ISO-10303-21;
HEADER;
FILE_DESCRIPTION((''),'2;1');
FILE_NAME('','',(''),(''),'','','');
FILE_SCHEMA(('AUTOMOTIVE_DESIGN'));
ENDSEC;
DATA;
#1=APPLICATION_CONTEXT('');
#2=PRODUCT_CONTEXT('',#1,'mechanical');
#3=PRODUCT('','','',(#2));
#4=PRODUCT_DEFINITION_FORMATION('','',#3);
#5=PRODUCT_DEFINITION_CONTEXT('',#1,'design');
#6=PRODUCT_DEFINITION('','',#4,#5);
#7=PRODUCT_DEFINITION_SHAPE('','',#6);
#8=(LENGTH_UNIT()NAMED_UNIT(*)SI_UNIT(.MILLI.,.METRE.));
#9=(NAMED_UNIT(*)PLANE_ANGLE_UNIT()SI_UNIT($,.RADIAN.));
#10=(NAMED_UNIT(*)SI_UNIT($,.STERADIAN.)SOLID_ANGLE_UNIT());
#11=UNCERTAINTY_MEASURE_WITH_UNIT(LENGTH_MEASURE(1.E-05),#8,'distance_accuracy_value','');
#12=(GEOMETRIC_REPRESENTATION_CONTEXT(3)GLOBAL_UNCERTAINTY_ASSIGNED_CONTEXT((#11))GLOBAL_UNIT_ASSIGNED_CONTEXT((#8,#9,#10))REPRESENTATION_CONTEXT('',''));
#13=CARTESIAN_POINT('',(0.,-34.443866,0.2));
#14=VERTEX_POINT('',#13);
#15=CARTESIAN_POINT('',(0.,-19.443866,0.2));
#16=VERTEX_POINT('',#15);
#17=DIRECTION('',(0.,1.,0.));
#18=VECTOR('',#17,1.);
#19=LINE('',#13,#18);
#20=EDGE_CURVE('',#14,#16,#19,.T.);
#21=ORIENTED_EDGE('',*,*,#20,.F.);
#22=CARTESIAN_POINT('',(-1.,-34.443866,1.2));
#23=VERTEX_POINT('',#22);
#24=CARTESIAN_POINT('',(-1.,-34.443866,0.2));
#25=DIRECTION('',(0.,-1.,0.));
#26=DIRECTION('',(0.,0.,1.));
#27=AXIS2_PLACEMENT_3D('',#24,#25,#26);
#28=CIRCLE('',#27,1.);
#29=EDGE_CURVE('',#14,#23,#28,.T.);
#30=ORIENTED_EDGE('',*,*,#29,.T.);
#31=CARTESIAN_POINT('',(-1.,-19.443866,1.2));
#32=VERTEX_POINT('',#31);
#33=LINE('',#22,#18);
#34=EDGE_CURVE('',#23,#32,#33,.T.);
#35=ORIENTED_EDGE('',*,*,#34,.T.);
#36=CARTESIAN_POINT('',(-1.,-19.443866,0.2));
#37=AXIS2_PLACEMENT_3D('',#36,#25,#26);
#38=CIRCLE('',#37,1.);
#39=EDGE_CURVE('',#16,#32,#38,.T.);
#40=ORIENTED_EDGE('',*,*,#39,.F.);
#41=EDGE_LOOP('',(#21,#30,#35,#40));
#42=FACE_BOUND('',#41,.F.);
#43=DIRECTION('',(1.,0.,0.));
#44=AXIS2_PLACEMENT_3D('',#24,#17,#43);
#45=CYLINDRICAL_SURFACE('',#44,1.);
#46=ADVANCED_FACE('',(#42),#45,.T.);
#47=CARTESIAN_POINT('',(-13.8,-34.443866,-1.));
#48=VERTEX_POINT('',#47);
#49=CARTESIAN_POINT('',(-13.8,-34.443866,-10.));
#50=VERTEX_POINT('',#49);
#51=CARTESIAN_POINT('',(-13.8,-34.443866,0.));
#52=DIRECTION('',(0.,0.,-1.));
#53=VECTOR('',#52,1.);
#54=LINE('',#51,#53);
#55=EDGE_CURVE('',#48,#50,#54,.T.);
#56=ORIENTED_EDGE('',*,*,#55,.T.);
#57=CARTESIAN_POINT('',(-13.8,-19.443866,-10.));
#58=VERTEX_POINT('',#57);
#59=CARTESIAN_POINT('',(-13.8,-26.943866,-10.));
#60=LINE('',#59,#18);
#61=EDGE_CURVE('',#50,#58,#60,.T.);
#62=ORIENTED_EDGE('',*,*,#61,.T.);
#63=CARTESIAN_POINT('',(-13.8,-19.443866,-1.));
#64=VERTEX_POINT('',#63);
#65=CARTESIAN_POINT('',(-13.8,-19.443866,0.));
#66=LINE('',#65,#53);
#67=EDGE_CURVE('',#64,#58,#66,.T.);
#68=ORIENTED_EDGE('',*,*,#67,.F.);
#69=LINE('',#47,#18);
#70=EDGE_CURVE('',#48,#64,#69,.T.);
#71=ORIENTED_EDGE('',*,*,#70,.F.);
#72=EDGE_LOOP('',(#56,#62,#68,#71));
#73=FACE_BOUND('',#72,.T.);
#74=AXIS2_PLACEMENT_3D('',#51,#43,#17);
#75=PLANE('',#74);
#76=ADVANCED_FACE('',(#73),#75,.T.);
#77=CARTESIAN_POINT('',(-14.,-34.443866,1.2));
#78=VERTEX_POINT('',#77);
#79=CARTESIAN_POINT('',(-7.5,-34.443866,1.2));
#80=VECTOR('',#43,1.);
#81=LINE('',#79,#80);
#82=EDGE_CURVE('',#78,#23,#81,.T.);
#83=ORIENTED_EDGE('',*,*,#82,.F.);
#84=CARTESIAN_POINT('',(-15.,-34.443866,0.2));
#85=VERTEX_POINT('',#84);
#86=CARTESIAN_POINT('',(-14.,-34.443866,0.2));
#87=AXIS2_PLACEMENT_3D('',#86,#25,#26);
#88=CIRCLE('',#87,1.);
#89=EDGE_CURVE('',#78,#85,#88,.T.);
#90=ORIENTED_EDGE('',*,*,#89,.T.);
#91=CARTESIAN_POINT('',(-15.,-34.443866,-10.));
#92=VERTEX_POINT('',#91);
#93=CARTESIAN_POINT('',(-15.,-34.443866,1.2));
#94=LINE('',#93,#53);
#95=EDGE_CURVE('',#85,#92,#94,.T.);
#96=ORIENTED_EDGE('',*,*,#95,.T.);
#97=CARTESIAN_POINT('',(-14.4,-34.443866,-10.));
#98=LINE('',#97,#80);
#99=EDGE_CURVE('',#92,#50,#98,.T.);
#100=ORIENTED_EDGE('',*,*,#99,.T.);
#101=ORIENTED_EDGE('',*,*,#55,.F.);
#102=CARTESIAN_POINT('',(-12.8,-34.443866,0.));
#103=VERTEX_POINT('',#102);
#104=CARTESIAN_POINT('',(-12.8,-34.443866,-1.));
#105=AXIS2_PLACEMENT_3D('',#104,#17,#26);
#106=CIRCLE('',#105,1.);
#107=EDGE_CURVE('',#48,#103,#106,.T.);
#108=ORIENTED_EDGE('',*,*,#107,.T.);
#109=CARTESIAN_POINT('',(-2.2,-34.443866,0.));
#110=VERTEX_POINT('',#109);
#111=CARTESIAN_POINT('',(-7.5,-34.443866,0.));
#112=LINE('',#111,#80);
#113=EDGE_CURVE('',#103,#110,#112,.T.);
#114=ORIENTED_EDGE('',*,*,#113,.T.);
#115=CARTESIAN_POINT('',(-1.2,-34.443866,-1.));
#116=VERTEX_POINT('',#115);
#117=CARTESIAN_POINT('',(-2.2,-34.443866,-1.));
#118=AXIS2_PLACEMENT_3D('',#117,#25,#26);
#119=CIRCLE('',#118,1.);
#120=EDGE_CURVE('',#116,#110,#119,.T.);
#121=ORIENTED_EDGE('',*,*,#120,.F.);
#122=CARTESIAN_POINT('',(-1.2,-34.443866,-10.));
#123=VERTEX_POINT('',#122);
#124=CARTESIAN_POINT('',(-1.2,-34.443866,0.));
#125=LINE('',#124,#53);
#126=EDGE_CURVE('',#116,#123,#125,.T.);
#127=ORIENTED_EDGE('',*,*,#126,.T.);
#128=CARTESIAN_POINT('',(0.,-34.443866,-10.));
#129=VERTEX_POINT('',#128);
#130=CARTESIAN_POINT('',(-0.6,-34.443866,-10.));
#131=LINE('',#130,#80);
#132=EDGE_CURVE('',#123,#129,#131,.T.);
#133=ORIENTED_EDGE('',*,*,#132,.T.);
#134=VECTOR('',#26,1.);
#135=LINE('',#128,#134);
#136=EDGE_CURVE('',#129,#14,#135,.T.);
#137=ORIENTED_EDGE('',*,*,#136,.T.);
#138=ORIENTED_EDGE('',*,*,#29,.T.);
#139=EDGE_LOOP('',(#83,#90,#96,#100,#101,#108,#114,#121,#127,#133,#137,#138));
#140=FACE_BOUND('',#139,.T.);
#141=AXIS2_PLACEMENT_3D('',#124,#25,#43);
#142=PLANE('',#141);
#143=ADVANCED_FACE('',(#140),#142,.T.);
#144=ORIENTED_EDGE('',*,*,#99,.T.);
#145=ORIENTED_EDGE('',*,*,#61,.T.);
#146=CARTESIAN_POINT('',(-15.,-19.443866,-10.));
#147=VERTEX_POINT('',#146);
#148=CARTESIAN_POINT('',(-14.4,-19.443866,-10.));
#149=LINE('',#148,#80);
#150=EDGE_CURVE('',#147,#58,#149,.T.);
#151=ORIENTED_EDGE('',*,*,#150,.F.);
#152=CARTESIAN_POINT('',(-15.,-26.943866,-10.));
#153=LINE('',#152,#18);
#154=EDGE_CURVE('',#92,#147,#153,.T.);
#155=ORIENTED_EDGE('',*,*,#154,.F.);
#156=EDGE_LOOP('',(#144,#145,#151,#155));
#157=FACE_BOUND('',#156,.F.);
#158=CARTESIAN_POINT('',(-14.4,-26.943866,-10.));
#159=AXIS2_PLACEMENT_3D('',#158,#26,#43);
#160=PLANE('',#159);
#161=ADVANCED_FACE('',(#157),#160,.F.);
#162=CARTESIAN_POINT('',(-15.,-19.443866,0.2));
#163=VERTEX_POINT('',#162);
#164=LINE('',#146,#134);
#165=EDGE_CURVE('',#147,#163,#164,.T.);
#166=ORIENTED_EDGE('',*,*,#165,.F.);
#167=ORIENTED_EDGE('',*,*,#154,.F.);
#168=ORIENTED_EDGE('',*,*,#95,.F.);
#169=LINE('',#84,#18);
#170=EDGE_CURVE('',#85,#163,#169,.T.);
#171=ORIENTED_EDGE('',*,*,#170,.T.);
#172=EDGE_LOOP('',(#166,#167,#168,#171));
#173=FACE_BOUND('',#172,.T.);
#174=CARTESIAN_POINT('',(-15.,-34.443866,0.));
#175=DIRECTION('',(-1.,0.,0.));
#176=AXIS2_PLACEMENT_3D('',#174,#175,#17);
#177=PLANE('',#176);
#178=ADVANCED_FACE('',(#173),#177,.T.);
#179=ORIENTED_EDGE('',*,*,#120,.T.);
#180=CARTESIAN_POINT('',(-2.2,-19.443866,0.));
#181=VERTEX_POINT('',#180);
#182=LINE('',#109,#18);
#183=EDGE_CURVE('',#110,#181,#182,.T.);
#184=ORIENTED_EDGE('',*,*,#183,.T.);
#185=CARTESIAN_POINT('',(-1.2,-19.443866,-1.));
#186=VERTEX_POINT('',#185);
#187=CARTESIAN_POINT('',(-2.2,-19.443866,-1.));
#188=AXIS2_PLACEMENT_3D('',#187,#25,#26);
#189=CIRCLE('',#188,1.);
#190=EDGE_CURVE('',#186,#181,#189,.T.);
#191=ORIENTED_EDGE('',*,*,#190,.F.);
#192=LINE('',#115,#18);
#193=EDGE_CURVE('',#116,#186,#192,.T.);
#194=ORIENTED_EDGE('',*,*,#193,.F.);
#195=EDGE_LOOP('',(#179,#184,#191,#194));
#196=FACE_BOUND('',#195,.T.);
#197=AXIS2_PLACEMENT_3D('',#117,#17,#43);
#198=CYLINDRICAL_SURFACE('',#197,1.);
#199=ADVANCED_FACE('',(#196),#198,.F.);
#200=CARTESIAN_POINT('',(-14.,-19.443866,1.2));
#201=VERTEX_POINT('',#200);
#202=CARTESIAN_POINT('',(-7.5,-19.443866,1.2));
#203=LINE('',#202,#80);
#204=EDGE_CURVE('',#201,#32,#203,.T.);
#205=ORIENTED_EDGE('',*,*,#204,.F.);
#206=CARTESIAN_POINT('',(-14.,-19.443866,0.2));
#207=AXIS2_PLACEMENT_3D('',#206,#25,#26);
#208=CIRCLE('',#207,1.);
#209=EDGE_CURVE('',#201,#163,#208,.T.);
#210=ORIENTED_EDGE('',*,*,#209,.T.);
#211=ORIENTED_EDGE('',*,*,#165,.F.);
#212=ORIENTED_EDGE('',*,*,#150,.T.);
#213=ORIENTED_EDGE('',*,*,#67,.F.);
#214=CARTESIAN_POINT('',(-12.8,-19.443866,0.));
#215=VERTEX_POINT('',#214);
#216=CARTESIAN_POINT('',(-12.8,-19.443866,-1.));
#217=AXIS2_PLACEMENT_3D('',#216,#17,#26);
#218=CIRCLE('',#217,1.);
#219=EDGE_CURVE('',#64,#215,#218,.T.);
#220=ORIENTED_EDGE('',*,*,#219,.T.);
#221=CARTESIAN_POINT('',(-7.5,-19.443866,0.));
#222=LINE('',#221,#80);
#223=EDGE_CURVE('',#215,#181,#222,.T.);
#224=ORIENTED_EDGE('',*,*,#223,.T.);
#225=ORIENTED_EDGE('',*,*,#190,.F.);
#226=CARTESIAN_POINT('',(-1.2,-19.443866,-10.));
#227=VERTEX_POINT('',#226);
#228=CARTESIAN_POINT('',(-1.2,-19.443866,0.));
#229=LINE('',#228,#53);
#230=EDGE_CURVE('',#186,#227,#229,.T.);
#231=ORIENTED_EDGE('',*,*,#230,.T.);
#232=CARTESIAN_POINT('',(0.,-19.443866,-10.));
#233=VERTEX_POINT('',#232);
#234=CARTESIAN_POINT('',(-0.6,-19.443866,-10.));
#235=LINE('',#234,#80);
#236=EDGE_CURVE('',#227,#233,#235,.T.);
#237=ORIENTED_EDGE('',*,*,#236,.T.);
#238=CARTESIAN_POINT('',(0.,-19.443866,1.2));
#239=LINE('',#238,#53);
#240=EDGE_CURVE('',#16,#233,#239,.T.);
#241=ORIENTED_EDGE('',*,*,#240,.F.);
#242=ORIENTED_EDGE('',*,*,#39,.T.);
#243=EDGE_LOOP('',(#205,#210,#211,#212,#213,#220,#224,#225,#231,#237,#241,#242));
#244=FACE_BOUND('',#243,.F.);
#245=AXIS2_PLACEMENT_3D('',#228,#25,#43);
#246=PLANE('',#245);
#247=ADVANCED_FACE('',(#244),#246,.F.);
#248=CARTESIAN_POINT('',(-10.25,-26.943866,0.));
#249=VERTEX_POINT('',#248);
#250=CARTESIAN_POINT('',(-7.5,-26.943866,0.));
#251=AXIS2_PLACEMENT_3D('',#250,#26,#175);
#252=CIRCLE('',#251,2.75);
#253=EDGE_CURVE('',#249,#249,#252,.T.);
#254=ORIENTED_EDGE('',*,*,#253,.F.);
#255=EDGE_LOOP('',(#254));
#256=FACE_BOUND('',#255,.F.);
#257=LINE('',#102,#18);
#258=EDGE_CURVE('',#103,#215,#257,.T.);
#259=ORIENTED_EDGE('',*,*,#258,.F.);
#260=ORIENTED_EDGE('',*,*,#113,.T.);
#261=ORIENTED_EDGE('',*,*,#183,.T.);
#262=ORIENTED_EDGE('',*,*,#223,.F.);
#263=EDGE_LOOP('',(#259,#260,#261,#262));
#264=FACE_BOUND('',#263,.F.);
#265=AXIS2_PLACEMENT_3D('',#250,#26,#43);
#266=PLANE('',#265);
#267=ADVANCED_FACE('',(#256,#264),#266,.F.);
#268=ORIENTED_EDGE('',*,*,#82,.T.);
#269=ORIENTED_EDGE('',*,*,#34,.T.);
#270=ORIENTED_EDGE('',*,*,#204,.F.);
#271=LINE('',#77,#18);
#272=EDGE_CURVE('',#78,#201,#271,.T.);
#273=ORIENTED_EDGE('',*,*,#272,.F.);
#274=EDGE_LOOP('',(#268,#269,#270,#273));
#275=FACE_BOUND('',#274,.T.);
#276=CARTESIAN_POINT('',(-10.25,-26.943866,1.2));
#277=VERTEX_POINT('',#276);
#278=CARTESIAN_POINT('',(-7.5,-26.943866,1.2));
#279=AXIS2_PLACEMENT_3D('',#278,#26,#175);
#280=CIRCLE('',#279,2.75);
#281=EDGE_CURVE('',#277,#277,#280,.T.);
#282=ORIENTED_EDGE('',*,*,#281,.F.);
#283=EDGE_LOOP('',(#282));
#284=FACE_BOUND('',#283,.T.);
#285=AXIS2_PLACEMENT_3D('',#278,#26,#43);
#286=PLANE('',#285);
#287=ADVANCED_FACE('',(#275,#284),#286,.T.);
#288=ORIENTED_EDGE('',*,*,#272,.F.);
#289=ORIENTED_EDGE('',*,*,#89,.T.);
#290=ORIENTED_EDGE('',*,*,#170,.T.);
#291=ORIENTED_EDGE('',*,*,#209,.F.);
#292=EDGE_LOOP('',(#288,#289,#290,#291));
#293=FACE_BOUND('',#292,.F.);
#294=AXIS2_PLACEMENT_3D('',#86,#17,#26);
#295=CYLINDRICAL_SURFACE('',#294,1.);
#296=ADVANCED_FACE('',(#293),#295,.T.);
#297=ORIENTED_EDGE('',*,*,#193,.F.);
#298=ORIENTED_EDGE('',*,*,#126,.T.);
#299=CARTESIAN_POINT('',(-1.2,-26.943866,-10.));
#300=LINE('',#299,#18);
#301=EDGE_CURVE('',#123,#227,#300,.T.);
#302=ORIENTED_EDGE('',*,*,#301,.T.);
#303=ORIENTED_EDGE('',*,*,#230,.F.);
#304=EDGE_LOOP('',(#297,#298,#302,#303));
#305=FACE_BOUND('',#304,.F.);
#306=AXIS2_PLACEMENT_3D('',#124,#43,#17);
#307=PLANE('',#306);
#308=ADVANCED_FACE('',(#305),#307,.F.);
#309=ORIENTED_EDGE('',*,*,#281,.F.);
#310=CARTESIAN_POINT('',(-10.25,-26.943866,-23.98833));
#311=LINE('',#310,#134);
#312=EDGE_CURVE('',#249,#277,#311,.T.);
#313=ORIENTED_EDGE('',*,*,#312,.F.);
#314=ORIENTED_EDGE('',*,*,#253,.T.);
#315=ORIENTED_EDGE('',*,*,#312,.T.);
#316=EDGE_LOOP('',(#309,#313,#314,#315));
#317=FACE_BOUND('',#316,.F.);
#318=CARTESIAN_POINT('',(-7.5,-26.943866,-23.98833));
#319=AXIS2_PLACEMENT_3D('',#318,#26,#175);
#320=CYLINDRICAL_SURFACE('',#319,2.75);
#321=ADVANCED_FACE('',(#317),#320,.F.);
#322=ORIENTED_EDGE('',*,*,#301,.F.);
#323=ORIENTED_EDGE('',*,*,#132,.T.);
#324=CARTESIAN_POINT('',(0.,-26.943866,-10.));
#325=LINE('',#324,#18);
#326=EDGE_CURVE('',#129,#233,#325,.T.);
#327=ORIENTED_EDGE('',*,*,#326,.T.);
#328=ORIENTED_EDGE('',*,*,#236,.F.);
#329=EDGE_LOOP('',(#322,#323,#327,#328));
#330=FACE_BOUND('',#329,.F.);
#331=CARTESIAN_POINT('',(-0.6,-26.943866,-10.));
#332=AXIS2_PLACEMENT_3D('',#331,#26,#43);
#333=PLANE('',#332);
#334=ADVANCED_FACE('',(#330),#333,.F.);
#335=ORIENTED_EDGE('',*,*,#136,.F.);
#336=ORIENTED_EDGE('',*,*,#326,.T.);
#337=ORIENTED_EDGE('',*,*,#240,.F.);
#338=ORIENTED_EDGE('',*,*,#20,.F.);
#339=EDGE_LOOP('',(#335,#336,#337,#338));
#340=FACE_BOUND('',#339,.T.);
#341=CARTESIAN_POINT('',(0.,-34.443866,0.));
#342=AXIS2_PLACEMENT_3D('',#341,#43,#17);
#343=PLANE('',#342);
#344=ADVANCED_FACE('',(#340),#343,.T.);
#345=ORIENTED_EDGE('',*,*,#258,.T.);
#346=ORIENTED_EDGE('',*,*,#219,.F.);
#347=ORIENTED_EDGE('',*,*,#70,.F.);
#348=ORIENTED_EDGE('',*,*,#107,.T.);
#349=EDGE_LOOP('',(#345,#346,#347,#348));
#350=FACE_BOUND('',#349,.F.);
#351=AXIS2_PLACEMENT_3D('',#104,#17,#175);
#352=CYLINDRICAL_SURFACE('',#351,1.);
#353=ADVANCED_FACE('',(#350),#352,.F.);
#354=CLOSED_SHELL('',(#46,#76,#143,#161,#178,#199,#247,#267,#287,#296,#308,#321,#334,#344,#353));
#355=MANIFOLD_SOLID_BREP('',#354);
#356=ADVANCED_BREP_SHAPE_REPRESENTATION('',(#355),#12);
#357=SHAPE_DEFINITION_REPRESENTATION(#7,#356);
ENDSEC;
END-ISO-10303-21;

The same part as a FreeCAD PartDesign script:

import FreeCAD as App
import Part
import Sketcher
from FreeCAD import Vector


def edges_at(feature, points):
    """Names of the edges that pass closest to the given points."""
    edges = feature.Shape.Edges
    near = lambda p: min(range(len(edges)), key=lambda i: edges[i].distToShape(Part.Vertex(*p))[0])
    return sorted({f"Edge{near(p) + 1}" for p in points})


def add_polygon(sketch, points):
    """Adds a closed chain of lines whose ends are joined by coincident constraints."""
    first, n = sketch.GeometryCount, len(points)
    for a, b in zip(points, points[1:] + points[:1]):
        sketch.addGeometry(Part.LineSegment(App.Vector(*a, 0), App.Vector(*b, 0)), False)
    for i in range(n):
        sketch.addConstraint(Sketcher.Constraint("Coincident", first + i, 2, first + (i + 1) % n, 1))

doc = App.newDocument("Part")
body = doc.addObject("PartDesign::Body", "Body")

# Sketch on XY plane
sketch1 = doc.addObject("Sketcher::SketchObject", "Sketch")
body.addObject(sketch1)
sketch1.AttachmentSupport = (doc.XY_Plane, [""])
sketch1.MapMode = "FlatFace"
add_polygon(sketch1, [(-15, -19), (-15, -34), (0, -34), (0, -19)])  # lines 0-3
sketch1.addConstraint([
    Sketcher.Constraint("Vertical", 0),
    Sketcher.Constraint("Horizontal", 1),
    Sketcher.Constraint("Vertical", 2),
    Sketcher.Constraint("Horizontal", 3),
    Sketcher.Constraint("PointOnObject", 1, 2, -2),
    Sketcher.Constraint("Equal", 3, 0),
    Sketcher.Constraint("DistanceX", 1, 1, 1, 2, 15.0),
    Sketcher.Constraint("DistanceY", 0, 2, -1, 1, 34.443866),
])
pad1 = doc.addObject("PartDesign::Pad", "Pad")
body.addObject(pad1)
pad1.Profile = sketch1
pad1.Length = 1.2

# Sketch on XY plane
sketch2 = doc.addObject("Sketcher::SketchObject", "Sketch001")
body.addObject(sketch2)
sketch2.AttachmentSupport = (doc.XY_Plane, [""])
sketch2.MapMode = "FlatFace"
add_polygon(sketch2, [(-1.2, -19.4), (-1.2, -34.4), (0, -34.4), (0, -19.4)])  # lines 0-3
add_polygon(sketch2, [(-15, -19.4), (-15, -34.4), (-13.8, -34.4), (-13.8, -19.4)])  # lines 4-7
sketch2.addConstraint([
    Sketcher.Constraint("Vertical", 0),
    Sketcher.Constraint("Horizontal", 1),
    Sketcher.Constraint("Vertical", 2),
    Sketcher.Constraint("Horizontal", 3),
    Sketcher.Constraint("Vertical", 4),
    Sketcher.Constraint("Horizontal", 5),
    Sketcher.Constraint("Vertical", 6),
    Sketcher.Constraint("Horizontal", 7),
    Sketcher.Constraint("PointOnObject", 1, 2, -2),
    Sketcher.Constraint("Horizontal", 1, 2, 4, 2),
    Sketcher.Constraint("Horizontal", 3, 2, 6, 2),
    Sketcher.Constraint("Equal", 3, 5),
    Sketcher.Constraint("DistanceY", 0, 2, 0, 1, 15.0),
    Sketcher.Constraint("DistanceX", 1, 1, 1, 2, 1.2),
    Sketcher.Constraint("DistanceX", 4, 2, -1, 1, 15.0),
    Sketcher.Constraint("DistanceY", 0, 2, -1, 1, 34.443866),
])
pad2 = doc.addObject("PartDesign::Pad", "Pad001")
body.addObject(pad2)
pad2.Profile = sketch2
pad2.Length = 10
pad2.Reversed = True
doc.recompute()

fillet = doc.addObject("PartDesign::Fillet", "Fillet")
body.addObject(fillet)
fillet.Base = (pad2, edges_at(pad2, [
    (-15, -26.944, 1.2),
    (0, -26.944, 1.2),
    (-1.2, -26.944, 0),
    (-13.8, -26.944, 0),
]))
fillet.Radius = 1

# Sketch on XY plane
sketch3 = doc.addObject("Sketcher::SketchObject", "Sketch002")
body.addObject(sketch3)
sketch3.AttachmentSupport = (doc.XY_Plane, [""])
sketch3.MapMode = "FlatFace"
sketch3.addGeometry(Part.Circle(Vector(-7.5, -26.9, 0), Vector(0, 0, 1), 2.8), False)
sketch3.addConstraint([
    Sketcher.Constraint("Diameter", 0, 5.5),
    Sketcher.Constraint("DistanceX", 0, 3, -1, 1, 7.5),
    Sketcher.Constraint("DistanceY", 0, 3, -1, 1, 26.943866),
])
doc.recompute()
hole = doc.addObject("PartDesign::Hole", "Hole")
body.addObject(hole)
hole.Profile = sketch3
hole.ThreadType = "None"
hole.Diameter = 5.5
hole.DepthType = "ThroughAll"
hole.Reversed = True

doc.recompute()
